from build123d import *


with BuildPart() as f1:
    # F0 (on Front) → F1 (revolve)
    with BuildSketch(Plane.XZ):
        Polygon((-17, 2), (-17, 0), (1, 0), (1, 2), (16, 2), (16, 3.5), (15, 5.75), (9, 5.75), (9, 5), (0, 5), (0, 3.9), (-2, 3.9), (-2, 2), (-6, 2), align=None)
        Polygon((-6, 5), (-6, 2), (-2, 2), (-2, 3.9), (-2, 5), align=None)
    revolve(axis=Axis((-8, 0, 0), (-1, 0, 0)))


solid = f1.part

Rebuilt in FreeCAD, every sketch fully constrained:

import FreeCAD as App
import Part
import Sketcher

V = App.Vector
Q = App.Units.Quantity

doc = App.newDocument("Part")
body = doc.addObject("PartDesign::Body", "Body")

# Sketch on XZ plane
sketch1 = body.newObject("Sketcher::SketchObject", "Sketch")
sketch1.AttachmentSupport = (doc.getObject("XZ_Plane"), [""])
sketch1.MapMode = "FlatFace"
sketch1.addGeometry([
    Part.LineSegment(V(-17, 2, 0), V(-17, 0, 0)),  # 0
    Part.LineSegment(V(-17, 0, 0), V(1, 0, 0)),  # 1
    Part.LineSegment(V(1, 0, 0), V(1, 2, 0)),  # 2
    Part.LineSegment(V(1, 2, 0), V(16, 2, 0)),  # 3
    Part.LineSegment(V(16, 2, 0), V(16, 3.5, 0)),  # 4
    Part.LineSegment(V(16, 3.5, 0), V(15, 5.8, 0)),  # 5
    Part.LineSegment(V(15, 5.8, 0), V(9, 5.8, 0)),  # 6
    Part.LineSegment(V(9, 5.8, 0), V(9, 5, 0)),  # 7
    Part.LineSegment(V(9, 5, 0), V(0, 5, 0)),  # 8
    Part.LineSegment(V(0, 5, 0), V(0, 3.9, 0)),  # 9
    Part.LineSegment(V(0, 3.9, 0), V(-2, 3.9, 0)),  # 10
    Part.LineSegment(V(-2, 3.9, 0), V(-2, 5, 0)),  # 11
    Part.LineSegment(V(-2, 5, 0), V(-6, 5, 0)),  # 12
    Part.LineSegment(V(-6, 5, 0), V(-6, 2, 0)),  # 13
    Part.LineSegment(V(-6, 2, 0), V(-17, 2, 0)),  # 14
], False)
sketch1.addConstraint([
    Sketcher.Constraint("Coincident", 0, 2, 1, 1),
    Sketcher.Constraint("Coincident", 1, 2, 2, 1),
    Sketcher.Constraint("Coincident", 2, 2, 3, 1),
    Sketcher.Constraint("Coincident", 3, 2, 4, 1),
    Sketcher.Constraint("Coincident", 4, 2, 5, 1),
    Sketcher.Constraint("Coincident", 5, 2, 6, 1),
    Sketcher.Constraint("Coincident", 6, 2, 7, 1),
    Sketcher.Constraint("Coincident", 7, 2, 8, 1),
    Sketcher.Constraint("Coincident", 8, 2, 9, 1),
    Sketcher.Constraint("Coincident", 9, 2, 10, 1),
    Sketcher.Constraint("Coincident", 10, 2, 11, 1),
    Sketcher.Constraint("Coincident", 11, 2, 12, 1),
    Sketcher.Constraint("Coincident", 12, 2, 13, 1),
    Sketcher.Constraint("Coincident", 13, 2, 14, 1),
    Sketcher.Constraint("Coincident", 14, 2, 0, 1),
    Sketcher.Constraint("Vertical", 0),
    Sketcher.Constraint("Horizontal", 1),
    Sketcher.Constraint("Vertical", 2),
    Sketcher.Constraint("Horizontal", 3),
    Sketcher.Constraint("Vertical", 4),
    Sketcher.Constraint("Horizontal", 6),
    Sketcher.Constraint("Vertical", 7),
    Sketcher.Constraint("Horizontal", 8),
    Sketcher.Constraint("Vertical", 9),
    Sketcher.Constraint("Horizontal", 10),
    Sketcher.Constraint("Vertical", 11),
    Sketcher.Constraint("Horizontal", 12),
    Sketcher.Constraint("Vertical", 13),
    Sketcher.Constraint("Horizontal", 14),
    Sketcher.Constraint("PointOnObject", 0, 2, -1),
    Sketcher.Constraint("PointOnObject", 8, 2, -2),
    Sketcher.Constraint("Horizontal", 8, 2, 11, 2),
    Sketcher.Constraint("Horizontal", 3, 2, 13, 2),
    Sketcher.Constraint("Equal", 10, 0),
    Sketcher.Constraint("DistanceX", 1, 1, 1, 2, Q("18 mm")),
    Sketcher.Constraint("DistanceX", 3, 1, 3, 2, Q("15 mm")),
    Sketcher.Constraint("DistanceX", 6, 2, 6, 1, Q("6 mm")),
    Sketcher.Constraint("DistanceX", 8, 2, 8, 1, Q("9 mm")),
    Sketcher.Constraint("DistanceX", 10, 2, 10, 1, Q("2 mm")),
    Sketcher.Constraint("DistanceX", 12, 2, 12, 1, Q("4 mm")),
    Sketcher.Constraint("DistanceX", 14, 2, 14, 1, Q("11 mm")),
    Sketcher.Constraint("DistanceY", 13, 2, 13, 1, Q("3 mm")),
    Sketcher.Constraint("DistanceY", 4, 1, 4, 2, Q("1.5 mm")),
    Sketcher.Constraint("DistanceY", 9, 2, 9, 1, Q("1.1 mm")),
    Sketcher.Constraint("DistanceY", 7, 2, 7, 1, Q("0.75 mm")),
])
revolution = body.newObject("PartDesign::Revolution", "Revolution")
revolution.Profile = sketch1
revolution.ReferenceAxis = (sketch1, ["H_Axis"])
revolution.Angle = 360

doc.recompute()
